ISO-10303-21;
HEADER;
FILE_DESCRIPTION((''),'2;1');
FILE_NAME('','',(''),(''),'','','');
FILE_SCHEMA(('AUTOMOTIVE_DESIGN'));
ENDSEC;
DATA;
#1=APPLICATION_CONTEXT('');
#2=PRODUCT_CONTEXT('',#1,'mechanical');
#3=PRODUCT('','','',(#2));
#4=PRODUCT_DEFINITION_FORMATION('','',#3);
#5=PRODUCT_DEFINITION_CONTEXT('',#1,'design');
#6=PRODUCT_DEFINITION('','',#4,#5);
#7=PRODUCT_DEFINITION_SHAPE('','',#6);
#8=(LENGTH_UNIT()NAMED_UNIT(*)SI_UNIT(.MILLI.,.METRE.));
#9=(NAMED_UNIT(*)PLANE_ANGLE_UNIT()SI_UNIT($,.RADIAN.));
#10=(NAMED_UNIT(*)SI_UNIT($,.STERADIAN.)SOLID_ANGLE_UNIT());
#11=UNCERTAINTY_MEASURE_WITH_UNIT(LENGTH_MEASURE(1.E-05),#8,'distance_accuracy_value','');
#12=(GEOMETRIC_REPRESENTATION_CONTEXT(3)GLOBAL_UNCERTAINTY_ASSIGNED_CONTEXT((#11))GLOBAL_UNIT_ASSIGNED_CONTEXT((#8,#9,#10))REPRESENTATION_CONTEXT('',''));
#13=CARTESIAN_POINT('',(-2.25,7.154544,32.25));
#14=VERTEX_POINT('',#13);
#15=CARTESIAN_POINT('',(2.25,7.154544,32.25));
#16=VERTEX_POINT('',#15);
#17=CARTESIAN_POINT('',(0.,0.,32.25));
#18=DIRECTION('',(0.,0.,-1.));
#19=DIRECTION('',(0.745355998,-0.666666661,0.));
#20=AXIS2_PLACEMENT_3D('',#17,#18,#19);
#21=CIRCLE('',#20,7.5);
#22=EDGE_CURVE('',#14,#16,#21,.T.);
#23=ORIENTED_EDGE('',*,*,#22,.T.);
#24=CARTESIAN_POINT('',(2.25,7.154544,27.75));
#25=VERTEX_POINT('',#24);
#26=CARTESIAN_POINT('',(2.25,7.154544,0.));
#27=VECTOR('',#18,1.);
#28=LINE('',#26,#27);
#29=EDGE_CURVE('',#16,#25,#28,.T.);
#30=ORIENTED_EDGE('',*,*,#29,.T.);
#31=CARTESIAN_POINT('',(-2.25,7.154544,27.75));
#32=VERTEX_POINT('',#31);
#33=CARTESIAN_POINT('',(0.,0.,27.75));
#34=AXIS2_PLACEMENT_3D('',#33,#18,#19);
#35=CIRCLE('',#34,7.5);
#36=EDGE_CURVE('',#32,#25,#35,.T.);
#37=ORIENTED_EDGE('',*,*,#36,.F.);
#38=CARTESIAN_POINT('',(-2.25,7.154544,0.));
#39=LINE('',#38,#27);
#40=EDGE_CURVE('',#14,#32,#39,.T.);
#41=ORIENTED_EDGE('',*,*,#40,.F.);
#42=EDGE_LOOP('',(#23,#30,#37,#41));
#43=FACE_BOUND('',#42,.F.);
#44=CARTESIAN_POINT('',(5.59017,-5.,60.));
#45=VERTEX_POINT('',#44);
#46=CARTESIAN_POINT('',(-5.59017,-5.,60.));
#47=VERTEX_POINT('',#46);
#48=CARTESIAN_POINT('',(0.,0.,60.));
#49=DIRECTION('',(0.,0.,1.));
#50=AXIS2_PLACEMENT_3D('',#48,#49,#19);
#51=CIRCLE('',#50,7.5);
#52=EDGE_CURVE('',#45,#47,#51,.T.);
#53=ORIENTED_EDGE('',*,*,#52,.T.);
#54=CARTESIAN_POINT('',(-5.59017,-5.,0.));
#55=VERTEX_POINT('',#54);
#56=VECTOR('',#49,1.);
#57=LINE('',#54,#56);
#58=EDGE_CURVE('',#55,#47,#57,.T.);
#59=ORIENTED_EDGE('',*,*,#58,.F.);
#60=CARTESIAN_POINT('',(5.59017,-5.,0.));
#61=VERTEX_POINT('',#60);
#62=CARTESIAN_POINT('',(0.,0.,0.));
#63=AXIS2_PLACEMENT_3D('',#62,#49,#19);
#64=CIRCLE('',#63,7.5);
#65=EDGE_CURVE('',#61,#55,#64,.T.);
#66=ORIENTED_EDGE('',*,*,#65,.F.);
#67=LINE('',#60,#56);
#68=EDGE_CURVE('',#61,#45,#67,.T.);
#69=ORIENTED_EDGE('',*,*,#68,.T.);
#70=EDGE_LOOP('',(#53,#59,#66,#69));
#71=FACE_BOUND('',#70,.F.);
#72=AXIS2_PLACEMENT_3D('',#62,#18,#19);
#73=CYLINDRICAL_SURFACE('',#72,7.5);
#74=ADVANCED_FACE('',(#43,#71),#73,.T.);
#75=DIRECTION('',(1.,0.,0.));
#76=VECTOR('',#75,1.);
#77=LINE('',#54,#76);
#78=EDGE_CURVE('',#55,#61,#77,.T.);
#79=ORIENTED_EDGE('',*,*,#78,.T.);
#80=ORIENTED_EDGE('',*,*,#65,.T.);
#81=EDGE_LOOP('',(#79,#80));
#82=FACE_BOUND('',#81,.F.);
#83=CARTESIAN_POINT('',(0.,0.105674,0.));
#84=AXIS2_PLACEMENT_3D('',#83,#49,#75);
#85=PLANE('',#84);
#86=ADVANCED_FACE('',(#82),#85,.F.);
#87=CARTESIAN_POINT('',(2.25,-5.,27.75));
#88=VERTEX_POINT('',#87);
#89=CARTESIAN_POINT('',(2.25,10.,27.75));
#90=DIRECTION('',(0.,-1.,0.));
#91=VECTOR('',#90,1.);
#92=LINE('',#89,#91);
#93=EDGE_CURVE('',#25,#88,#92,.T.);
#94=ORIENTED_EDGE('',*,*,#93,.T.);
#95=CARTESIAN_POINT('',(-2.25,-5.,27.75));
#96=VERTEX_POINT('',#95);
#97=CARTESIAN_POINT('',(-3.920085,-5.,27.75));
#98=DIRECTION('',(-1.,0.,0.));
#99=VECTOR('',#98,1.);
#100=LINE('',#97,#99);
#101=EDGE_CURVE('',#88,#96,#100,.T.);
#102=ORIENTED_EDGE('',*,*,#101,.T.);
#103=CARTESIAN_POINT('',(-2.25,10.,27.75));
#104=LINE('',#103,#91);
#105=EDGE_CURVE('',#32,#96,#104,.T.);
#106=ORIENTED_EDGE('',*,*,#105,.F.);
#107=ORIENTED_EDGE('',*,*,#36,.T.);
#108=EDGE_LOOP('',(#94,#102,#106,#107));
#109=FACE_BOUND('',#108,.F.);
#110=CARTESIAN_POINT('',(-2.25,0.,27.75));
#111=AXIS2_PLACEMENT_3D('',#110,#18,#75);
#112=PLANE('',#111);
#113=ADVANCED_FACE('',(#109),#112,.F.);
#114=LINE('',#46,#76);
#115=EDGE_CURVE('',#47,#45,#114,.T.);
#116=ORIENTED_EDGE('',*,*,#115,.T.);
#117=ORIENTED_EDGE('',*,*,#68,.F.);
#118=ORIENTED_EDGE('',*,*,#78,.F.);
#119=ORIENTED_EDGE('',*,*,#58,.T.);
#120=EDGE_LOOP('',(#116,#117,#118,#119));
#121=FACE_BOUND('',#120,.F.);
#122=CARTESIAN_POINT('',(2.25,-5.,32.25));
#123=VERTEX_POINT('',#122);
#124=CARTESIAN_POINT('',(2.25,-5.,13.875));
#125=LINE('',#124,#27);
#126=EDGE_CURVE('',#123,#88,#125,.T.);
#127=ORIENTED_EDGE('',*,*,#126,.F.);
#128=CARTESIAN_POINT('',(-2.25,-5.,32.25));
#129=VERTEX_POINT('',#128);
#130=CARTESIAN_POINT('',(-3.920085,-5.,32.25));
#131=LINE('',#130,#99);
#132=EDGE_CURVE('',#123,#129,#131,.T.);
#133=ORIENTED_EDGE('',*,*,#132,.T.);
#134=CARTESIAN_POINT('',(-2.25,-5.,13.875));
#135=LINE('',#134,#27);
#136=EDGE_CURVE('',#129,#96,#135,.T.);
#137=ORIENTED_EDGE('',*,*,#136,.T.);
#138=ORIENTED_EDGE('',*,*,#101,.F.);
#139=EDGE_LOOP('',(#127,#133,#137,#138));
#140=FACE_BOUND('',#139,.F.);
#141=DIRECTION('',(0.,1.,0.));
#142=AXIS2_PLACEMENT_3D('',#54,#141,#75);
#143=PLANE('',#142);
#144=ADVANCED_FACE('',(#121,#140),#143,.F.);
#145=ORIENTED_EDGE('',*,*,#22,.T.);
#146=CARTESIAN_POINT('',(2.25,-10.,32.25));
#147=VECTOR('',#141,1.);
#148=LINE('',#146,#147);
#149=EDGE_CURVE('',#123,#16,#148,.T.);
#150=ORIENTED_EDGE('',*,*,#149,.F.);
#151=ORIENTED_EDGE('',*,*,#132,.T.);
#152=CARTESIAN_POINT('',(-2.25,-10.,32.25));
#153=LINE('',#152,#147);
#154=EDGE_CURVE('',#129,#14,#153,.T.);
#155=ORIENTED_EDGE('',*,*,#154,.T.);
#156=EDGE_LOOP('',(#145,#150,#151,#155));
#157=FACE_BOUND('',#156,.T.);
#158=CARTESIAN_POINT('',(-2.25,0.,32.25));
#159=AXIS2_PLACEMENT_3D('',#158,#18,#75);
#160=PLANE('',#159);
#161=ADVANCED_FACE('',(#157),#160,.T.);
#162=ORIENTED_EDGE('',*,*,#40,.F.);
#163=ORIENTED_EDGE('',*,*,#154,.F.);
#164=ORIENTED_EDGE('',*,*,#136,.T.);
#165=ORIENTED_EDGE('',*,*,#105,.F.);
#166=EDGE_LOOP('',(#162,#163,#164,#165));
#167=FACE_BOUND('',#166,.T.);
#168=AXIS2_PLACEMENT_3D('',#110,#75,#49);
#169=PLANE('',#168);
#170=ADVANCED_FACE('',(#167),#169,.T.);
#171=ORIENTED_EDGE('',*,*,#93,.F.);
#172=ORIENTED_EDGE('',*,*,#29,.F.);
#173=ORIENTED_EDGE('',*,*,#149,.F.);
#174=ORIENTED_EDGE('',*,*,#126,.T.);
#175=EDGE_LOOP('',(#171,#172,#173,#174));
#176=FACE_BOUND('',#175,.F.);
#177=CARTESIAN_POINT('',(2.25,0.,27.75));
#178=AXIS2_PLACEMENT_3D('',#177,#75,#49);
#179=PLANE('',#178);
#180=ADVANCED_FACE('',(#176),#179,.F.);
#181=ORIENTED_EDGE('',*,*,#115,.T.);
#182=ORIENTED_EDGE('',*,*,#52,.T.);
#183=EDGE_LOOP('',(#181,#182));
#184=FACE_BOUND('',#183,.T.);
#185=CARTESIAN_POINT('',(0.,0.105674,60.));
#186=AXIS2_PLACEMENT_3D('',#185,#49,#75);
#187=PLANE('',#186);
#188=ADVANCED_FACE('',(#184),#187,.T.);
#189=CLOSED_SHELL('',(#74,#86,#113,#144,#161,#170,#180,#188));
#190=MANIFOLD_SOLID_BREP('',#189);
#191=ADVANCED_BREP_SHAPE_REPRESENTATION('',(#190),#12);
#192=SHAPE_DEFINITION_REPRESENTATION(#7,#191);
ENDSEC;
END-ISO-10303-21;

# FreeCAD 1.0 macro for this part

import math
import FreeCAD as App
import Part
import Sketcher
from FreeCAD import Vector
Q = App.Units.Quantity

doc = App.newDocument("Part")
body = doc.addObject("PartDesign::Body", "Body")

# Sketch on XY plane
sketch1 = body.newObject("Sketcher::SketchObject", "Sketch")
sketch1.AttachmentSupport = (doc.getObject("XY_Plane"), [""])
sketch1.MapMode = "FlatFace"
sketch1.addGeometry([
    Part.LineSegment(Vector(-5.59017, -5, 0), Vector(5.59017, -5, 0)),
    Part.ArcOfCircle(Part.Circle(Vector(0, 0, 0), Vector(0, 0, 1), 7.5), math.radians(-41.810314), math.radians(221.810314)),
], False)
sketch1.addConstraint([
    Sketcher.Constraint("Coincident", 0, 1, 1, 2),
    Sketcher.Constraint("Coincident", 1, 1, 0, 2),
    Sketcher.Constraint("Horizontal", 0),
    Sketcher.Constraint("Coincident", 1, 3, -1, 1),
    Sketcher.Constraint("Radius", 1, Q("7.5 mm")),
    Sketcher.Constraint("DistanceY", 0, 1, -1, 1, Q("5 mm")),
])
pad1 = body.newObject("PartDesign::Pad", "Pad")
pad1.Profile = sketch1
pad1.Length = 60

# Sketch on XZ plane
sketch2 = body.newObject("Sketcher::SketchObject", "Sketch001")
sketch2.AttachmentSupport = (doc.getObject("XZ_Plane"), [""])
sketch2.MapMode = "FlatFace"
sketch2.addGeometry([
    Part.LineSegment(Vector(-2.25, 32.25, 0), Vector(-2.25, 27.75, 0)),
    Part.LineSegment(Vector(-2.25, 27.75, 0), Vector(2.25, 27.75, 0)),
    Part.LineSegment(Vector(2.25, 27.75, 0), Vector(2.25, 32.25, 0)),
    Part.LineSegment(Vector(2.25, 32.25, 0), Vector(-2.25, 32.25, 0)),
], False)
sketch2.addConstraint([
    Sketcher.Constraint("Coincident", 0, 2, 1, 1),
    Sketcher.Constraint("Coincident", 1, 2, 2, 1),
    Sketcher.Constraint("Coincident", 2, 2, 3, 1),
    Sketcher.Constraint("Coincident", 3, 2, 0, 1),
    Sketcher.Constraint("Vertical", 0),
    Sketcher.Constraint("Horizontal", 1),
    Sketcher.Constraint("Vertical", 2),
    Sketcher.Constraint("Horizontal", 3),
    Sketcher.Constraint("Equal", 3, 0),
    Sketcher.Constraint("DistanceX", 1, 1, 1, 2, Q("4.5 mm")),
    Sketcher.Constraint("DistanceX", 0, 2, -1, 1, Q("2.25 mm")),
    Sketcher.Constraint("DistanceY", -1, 1, 0, 2, Q("27.75 mm")),
])
pocket1 = body.newObject("PartDesign::Pocket", "Pocket")
pocket1.Profile = sketch2
pocket1.Length = 20
pocket1.Midplane = True

doc.recompute()
